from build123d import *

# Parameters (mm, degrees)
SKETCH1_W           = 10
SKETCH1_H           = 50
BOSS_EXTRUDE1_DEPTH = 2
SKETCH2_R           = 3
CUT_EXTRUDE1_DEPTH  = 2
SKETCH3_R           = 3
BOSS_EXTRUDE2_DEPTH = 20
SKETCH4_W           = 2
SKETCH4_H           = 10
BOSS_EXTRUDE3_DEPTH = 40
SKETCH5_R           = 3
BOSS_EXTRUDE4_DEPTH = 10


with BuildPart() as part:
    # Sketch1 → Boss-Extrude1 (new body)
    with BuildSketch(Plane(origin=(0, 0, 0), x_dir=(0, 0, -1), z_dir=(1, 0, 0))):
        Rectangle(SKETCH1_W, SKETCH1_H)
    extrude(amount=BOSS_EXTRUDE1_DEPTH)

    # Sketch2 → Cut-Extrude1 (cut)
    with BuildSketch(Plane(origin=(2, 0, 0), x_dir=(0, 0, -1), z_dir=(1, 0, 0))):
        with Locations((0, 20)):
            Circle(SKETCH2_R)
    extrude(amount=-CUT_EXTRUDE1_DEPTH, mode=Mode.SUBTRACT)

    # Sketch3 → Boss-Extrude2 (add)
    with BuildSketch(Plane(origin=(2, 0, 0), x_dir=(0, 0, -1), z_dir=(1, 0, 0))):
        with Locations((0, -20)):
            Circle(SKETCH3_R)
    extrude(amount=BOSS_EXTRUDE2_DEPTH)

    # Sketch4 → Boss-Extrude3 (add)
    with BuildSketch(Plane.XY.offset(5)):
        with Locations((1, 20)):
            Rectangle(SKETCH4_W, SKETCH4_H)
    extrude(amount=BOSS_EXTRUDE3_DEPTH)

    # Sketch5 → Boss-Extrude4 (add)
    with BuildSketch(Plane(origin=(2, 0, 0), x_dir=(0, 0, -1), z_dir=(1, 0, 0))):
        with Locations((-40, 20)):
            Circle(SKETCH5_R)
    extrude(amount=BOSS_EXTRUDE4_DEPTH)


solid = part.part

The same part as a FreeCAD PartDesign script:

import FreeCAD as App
import Part
import Sketcher

V = App.Vector
Q = App.Units.Quantity

doc = App.newDocument("Part")
body = doc.addObject("PartDesign::Body", "Body")

# Sketch on YZ plane
sketch1 = body.newObject("Sketcher::SketchObject", "Sketch")
sketch1.AttachmentSupport = (doc.getObject("YZ_Plane"), [""])
sketch1.MapMode = "FlatFace"
sketch1.addGeometry(Part.LineSegment(V(25, 5, 0), V(-25, 5, 0)), False)
sketch1.addGeometry(Part.LineSegment(V(-25, 5, 0), V(-25, -5, 0)), False)
sketch1.addGeometry(Part.LineSegment(V(-25, -5, 0), V(25, -5, 0)), False)
sketch1.addGeometry(Part.LineSegment(V(25, -5, 0), V(25, 5, 0)), False)
sketch1.addConstraint(Sketcher.Constraint("Coincident", 0, 2, 1, 1))
sketch1.addConstraint(Sketcher.Constraint("Coincident", 1, 2, 2, 1))
sketch1.addConstraint(Sketcher.Constraint("Coincident", 2, 2, 3, 1))
sketch1.addConstraint(Sketcher.Constraint("Coincident", 3, 2, 0, 1))
sketch1.addConstraint(Sketcher.Constraint("Horizontal", 0))
sketch1.addConstraint(Sketcher.Constraint("Vertical", 1))
sketch1.addConstraint(Sketcher.Constraint("Horizontal", 2))
sketch1.addConstraint(Sketcher.Constraint("Vertical", 3))
sketch1.addConstraint(Sketcher.Constraint("Symmetric", 0, 2, 2, 2, -1, 1))
sketch1.addConstraint(Sketcher.Constraint("DistanceX", 0, 2, 0, 1, Q("50 mm")))
sketch1.addConstraint(Sketcher.Constraint("DistanceY", 1, 2, 1, 1, Q("10 mm")))
pad1 = body.newObject("PartDesign::Pad", "Pad")
pad1.Profile = sketch1
pad1.Length = 2

# Sketch on YZ plane
sketch2 = body.newObject("Sketcher::SketchObject", "Sketch001")
sketch2.AttachmentSupport = (doc.getObject("YZ_Plane"), [""])
sketch2.MapMode = "FlatFace"
sketch2.AttachmentOffset = App.Placement(V(0, 0, 2), App.Rotation())
sketch2.addGeometry(Part.Circle(V(20, 0, 0), V(0, 0, 1), 3), False)
sketch2.addConstraint(Sketcher.Constraint("PointOnObject", 0, 3, -1))
sketch2.addConstraint(Sketcher.Constraint("Diameter", 0, Q("6 mm")))
sketch2.addConstraint(Sketcher.Constraint("DistanceX", -1, 1, 0, 3, Q("20 mm")))
pocket1 = body.newObject("PartDesign::Pocket", "Pocket")
pocket1.Profile = sketch2
pocket1.Length = 2

# Sketch on YZ plane
sketch3 = body.newObject("Sketcher::SketchObject", "Sketch002")
sketch3.AttachmentSupport = (doc.getObject("YZ_Plane"), [""])
sketch3.MapMode = "FlatFace"
sketch3.AttachmentOffset = App.Placement(V(0, 0, 2), App.Rotation())
sketch3.addGeometry(Part.Circle(V(-20, 0, 0), V(0, 0, 1), 3), False)
sketch3.addConstraint(Sketcher.Constraint("PointOnObject", 0, 3, -1))
sketch3.addConstraint(Sketcher.Constraint("Diameter", 0, Q("6 mm")))
sketch3.addConstraint(Sketcher.Constraint("DistanceX", 0, 3, -1, 1, Q("20 mm")))
pad2 = body.newObject("PartDesign::Pad", "Pad001")
pad2.Profile = sketch3
pad2.Length = 20

# Sketch on XY plane
sketch4 = body.newObject("Sketcher::SketchObject", "Sketch003")
sketch4.AttachmentSupport = (doc.getObject("XY_Plane"), [""])
sketch4.MapMode = "FlatFace"
sketch4.AttachmentOffset = App.Placement(V(0, 0, 5), App.Rotation())
sketch4.addGeometry(Part.LineSegment(V(0, 25, 0), V(0, 15, 0)), False)
sketch4.addGeometry(Part.LineSegment(V(0, 15, 0), V(2, 15, 0)), False)
sketch4.addGeometry(Part.LineSegment(V(2, 15, 0), V(2, 25, 0)), False)
sketch4.addGeometry(Part.LineSegment(V(2, 25, 0), V(0, 25, 0)), False)
sketch4.addConstraint(Sketcher.Constraint("Coincident", 0, 2, 1, 1))
sketch4.addConstraint(Sketcher.Constraint("Coincident", 1, 2, 2, 1))
sketch4.addConstraint(Sketcher.Constraint("Coincident", 2, 2, 3, 1))
sketch4.addConstraint(Sketcher.Constraint("Coincident", 3, 2, 0, 1))
sketch4.addConstraint(Sketcher.Constraint("Vertical", 0))
sketch4.addConstraint(Sketcher.Constraint("Horizontal", 1))
sketch4.addConstraint(Sketcher.Constraint("Vertical", 2))
sketch4.addConstraint(Sketcher.Constraint("Horizontal", 3))
sketch4.addConstraint(Sketcher.Constraint("PointOnObject", 0, 2, -2))
sketch4.addConstraint(Sketcher.Constraint("DistanceX", 1, 1, 1, 2, Q("2 mm")))
sketch4.addConstraint(Sketcher.Constraint("DistanceY", 0, 2, 0, 1, Q("10 mm")))
sketch4.addConstraint(Sketcher.Constraint("DistanceY", -1, 1, 0, 2, Q("15 mm")))
pad3 = body.newObject("PartDesign::Pad", "Pad002")
pad3.Profile = sketch4
pad3.Length = 40

# Sketch on YZ plane
sketch5 = body.newObject("Sketcher::SketchObject", "Sketch004")
sketch5.AttachmentSupport = (doc.getObject("YZ_Plane"), [""])
sketch5.MapMode = "FlatFace"
sketch5.AttachmentOffset = App.Placement(V(0, 0, 2), App.Rotation())
sketch5.addGeometry(Part.Circle(V(20, 40, 0), V(0, 0, 1), 3), False)
sketch5.addConstraint(Sketcher.Constraint("Diameter", 0, Q("6 mm")))
sketch5.addConstraint(Sketcher.Constraint("DistanceX", -1, 1, 0, 3, Q("20 mm")))
sketch5.addConstraint(Sketcher.Constraint("DistanceY", -1, 1, 0, 3, Q("40 mm")))
pad4 = body.newObject("PartDesign::Pad", "Pad003")
pad4.Profile = sketch5
pad4.Length = 10

doc.recompute()
